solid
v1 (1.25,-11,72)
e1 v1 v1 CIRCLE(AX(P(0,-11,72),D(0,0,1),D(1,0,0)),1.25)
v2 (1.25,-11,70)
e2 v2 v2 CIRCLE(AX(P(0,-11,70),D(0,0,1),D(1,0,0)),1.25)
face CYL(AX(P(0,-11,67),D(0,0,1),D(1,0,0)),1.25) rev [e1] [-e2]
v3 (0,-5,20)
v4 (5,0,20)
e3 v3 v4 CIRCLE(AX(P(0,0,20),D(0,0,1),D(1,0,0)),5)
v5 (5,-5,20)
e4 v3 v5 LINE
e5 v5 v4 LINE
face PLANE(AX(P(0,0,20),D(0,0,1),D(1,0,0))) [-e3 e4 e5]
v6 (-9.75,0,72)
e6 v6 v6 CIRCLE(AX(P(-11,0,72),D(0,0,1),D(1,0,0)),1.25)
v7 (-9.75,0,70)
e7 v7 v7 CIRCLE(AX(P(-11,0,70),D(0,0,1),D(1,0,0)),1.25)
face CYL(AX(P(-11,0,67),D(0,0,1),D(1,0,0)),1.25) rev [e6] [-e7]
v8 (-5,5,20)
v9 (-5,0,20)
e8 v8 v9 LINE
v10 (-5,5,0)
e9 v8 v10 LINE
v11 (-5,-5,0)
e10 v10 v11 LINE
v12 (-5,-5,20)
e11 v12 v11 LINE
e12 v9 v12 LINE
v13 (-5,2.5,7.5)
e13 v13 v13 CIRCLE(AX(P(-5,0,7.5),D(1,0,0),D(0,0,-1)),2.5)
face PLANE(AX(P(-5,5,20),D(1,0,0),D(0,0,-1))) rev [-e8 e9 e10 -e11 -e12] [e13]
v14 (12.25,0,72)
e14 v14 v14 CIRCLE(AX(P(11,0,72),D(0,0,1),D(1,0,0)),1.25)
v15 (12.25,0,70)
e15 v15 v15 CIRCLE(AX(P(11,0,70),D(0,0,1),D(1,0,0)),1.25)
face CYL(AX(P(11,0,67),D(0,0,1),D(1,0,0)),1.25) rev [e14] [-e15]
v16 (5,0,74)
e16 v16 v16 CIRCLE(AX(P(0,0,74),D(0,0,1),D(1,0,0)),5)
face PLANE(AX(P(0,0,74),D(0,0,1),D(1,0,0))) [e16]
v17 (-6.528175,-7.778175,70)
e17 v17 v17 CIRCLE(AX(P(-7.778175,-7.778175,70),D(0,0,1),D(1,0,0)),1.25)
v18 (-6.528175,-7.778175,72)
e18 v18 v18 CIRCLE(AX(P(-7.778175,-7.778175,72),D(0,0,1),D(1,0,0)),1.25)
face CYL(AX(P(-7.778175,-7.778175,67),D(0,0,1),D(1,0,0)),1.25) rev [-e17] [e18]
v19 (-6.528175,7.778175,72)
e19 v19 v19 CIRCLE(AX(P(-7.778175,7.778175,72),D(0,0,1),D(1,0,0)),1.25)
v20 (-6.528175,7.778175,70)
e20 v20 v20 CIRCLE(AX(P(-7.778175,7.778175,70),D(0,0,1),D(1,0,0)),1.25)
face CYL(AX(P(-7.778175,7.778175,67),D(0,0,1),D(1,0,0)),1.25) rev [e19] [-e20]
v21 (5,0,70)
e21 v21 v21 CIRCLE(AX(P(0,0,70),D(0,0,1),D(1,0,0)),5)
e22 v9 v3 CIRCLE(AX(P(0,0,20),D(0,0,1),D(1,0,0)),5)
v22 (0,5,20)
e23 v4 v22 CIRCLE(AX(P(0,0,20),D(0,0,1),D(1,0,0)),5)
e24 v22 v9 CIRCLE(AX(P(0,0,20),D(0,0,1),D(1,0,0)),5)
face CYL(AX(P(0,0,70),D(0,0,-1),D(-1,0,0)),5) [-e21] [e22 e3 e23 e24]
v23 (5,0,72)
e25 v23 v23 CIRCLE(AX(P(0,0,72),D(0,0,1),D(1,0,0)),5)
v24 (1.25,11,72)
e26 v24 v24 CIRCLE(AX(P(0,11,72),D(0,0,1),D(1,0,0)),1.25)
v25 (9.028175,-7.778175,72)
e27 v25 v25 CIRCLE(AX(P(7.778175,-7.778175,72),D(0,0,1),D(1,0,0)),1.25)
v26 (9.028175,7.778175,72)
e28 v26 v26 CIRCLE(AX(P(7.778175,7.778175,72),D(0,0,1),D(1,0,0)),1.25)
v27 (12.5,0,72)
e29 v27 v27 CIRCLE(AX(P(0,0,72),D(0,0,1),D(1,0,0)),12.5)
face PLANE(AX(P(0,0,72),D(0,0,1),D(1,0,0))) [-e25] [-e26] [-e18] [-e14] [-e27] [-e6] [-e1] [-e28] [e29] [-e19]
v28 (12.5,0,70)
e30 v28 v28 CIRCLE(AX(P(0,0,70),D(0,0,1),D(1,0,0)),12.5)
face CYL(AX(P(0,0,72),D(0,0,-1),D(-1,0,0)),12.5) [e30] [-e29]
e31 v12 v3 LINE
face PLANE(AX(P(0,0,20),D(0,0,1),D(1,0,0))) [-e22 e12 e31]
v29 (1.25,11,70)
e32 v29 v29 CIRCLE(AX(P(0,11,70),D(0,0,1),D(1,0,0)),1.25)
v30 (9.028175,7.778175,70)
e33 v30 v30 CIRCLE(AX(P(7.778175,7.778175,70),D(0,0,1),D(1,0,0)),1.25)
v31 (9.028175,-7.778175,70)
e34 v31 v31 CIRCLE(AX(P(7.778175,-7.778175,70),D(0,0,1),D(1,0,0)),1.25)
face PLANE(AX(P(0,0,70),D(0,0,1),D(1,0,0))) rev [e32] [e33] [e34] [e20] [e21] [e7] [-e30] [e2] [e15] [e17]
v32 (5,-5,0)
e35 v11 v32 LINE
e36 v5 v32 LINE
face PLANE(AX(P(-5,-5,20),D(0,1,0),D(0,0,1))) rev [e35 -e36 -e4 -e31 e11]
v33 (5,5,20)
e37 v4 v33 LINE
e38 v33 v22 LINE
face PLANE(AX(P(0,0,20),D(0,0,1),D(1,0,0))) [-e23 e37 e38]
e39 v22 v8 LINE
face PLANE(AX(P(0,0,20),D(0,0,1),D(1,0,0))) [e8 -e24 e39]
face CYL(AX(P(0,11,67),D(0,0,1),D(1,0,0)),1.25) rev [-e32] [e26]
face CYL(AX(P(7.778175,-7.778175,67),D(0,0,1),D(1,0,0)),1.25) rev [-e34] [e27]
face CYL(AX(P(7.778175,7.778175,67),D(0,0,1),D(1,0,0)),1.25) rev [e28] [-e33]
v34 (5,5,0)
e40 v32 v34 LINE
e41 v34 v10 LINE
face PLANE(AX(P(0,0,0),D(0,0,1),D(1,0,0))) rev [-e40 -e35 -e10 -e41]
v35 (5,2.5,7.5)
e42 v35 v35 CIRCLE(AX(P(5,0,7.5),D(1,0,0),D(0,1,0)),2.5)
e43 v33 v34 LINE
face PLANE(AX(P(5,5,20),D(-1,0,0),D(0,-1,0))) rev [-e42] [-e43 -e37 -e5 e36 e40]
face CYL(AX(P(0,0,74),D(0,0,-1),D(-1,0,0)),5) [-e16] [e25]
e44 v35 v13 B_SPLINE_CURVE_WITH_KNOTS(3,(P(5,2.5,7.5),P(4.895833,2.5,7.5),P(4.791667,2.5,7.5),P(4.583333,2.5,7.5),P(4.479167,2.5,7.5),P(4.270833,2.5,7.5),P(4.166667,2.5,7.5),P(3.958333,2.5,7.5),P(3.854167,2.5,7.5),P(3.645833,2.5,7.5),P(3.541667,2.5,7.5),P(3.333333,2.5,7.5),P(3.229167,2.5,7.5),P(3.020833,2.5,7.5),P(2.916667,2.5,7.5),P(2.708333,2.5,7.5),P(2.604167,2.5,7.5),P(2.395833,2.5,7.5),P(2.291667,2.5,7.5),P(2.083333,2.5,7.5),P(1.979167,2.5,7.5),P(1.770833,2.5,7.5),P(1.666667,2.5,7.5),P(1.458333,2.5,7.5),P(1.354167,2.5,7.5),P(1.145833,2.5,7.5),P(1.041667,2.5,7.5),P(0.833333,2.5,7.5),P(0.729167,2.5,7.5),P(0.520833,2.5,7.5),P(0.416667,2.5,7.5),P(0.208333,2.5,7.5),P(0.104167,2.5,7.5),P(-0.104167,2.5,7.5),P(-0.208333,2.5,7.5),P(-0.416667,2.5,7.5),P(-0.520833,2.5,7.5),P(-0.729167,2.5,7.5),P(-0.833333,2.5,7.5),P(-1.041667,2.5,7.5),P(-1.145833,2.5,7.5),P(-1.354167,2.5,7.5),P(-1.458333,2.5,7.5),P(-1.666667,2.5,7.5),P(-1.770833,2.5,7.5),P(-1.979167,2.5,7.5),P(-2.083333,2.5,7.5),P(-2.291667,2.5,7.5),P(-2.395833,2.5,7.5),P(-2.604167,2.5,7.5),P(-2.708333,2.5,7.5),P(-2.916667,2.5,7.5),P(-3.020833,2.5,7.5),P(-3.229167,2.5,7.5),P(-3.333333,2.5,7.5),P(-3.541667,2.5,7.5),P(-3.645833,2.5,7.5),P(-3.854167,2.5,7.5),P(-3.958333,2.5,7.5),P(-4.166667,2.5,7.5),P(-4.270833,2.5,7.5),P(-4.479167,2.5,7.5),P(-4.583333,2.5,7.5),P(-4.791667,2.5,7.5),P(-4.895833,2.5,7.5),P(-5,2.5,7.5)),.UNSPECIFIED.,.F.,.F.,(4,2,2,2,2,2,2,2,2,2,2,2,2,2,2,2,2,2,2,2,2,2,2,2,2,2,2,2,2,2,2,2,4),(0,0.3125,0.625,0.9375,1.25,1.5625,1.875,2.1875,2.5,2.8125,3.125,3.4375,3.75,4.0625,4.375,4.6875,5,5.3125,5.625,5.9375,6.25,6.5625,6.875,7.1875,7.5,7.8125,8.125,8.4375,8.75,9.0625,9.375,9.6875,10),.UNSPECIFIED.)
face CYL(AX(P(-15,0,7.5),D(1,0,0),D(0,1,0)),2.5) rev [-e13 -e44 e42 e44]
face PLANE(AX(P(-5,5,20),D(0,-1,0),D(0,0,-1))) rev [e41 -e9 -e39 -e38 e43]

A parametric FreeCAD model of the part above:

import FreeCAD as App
import Part
import Sketcher


def add_polygon(sketch, points):
    """Adds a closed chain of lines whose ends are joined by coincident constraints."""
    first, n = sketch.GeometryCount, len(points)
    for a, b in zip(points, points[1:] + points[:1]):
        sketch.addGeometry(Part.LineSegment(App.Vector(*a, 0), App.Vector(*b, 0)), False)
    for i in range(n):
        sketch.addConstraint(Sketcher.Constraint("Coincident", first + i, 2, first + (i + 1) % n, 1))

doc = App.newDocument("Part")
body = doc.addObject("PartDesign::Body", "Body")

sketch1 = body.newObject("Sketcher::SketchObject", "Sketch")
sketch1.AttachmentSupport = (doc.getObject("XY_Plane"), [""])
sketch1.MapMode = "FlatFace"
add_polygon(sketch1, [(-5, 5), (-5, -5), (5, -5), (5, 5)])
sketch1.addConstraint([
    Sketcher.Constraint("Vertical", 0),
    Sketcher.Constraint("Horizontal", 1),
    Sketcher.Constraint("Vertical", 2),
    Sketcher.Constraint("Horizontal", 3),
    Sketcher.Constraint("Symmetric", 0, 2, 2, 2, -1, 1),
    Sketcher.Constraint("Equal", 3, 0),
    Sketcher.Constraint("DistanceX", 1, 1, 1, 2, 10.0),
])
pad1 = body.newObject("PartDesign::Pad", "Pad")
pad1.Profile = sketch1
pad1.Length = 20

sketch2 = body.newObject("Sketcher::SketchObject", "Sketch001")
sketch2.AttachmentSupport = (doc.getObject("YZ_Plane"), [""])
sketch2.MapMode = "FlatFace"
sketch2.AttachmentOffset = App.Placement(App.Vector(0, 0, 5), App.Rotation())
sketch2.addGeometry(Part.Circle(App.Vector(0, 7.5, 0), App.Vector(0, 0, 1), 2.5), False)
sketch2.addConstraint([
    Sketcher.Constraint("PointOnObject", 0, 3, -2),
    Sketcher.Constraint("Diameter", 0, 5.0),
    Sketcher.Constraint("DistanceY", -1, 1, 0, 3, 7.5),
])
pocket1 = body.newObject("PartDesign::Pocket", "Pocket")
pocket1.Profile = sketch2
pocket1.Length = 20

sketch3 = body.newObject("Sketcher::SketchObject", "Sketch002")
sketch3.AttachmentSupport = (doc.getObject("XY_Plane"), [""])
sketch3.MapMode = "FlatFace"
sketch3.AttachmentOffset = App.Placement(App.Vector(0, 0, 20), App.Rotation())
sketch3.addGeometry(Part.Circle(App.Vector(0, 0, 0), App.Vector(0, 0, 1), 5), False)
sketch3.addConstraint([
    Sketcher.Constraint("Coincident", 0, 3, -1, 1),
    Sketcher.Constraint("Diameter", 0, 10.0),
])
pad2 = body.newObject("PartDesign::Pad", "Pad001")
pad2.Profile = sketch3
pad2.Length = 50

sketch4 = body.newObject("Sketcher::SketchObject", "Sketch003")
sketch4.AttachmentSupport = (doc.getObject("XY_Plane"), [""])
sketch4.MapMode = "FlatFace"
sketch4.AttachmentOffset = App.Placement(App.Vector(0, 0, 70), App.Rotation())
sketch4.addGeometry(Part.Circle(App.Vector(0, 0, 0), App.Vector(0, 0, 1), 12), False)
sketch4.addConstraint([
    Sketcher.Constraint("Coincident", 0, 3, -1, 1),
    Sketcher.Constraint("Diameter", 0, 25.0),
])
pad3 = body.newObject("PartDesign::Pad", "Pad002")
pad3.Profile = sketch4
pad3.Length = 2

sketch5 = body.newObject("Sketcher::SketchObject", "Sketch004")
sketch5.AttachmentSupport = (doc.getObject("XY_Plane"), [""])
sketch5.MapMode = "FlatFace"
sketch5.AttachmentOffset = App.Placement(App.Vector(0, 0, 72), App.Rotation())
sketch5.addGeometry([
    Part.Circle(App.Vector(0, 11, 0), App.Vector(0, 0, 1), 1.2),
    Part.Circle(App.Vector(7.8, 7.8, 0), App.Vector(0, 0, 1), 1.2),
    Part.Circle(App.Vector(11, 0, 0), App.Vector(0, 0, 1), 1.2),
    Part.Circle(App.Vector(7.8, -7.8, 0), App.Vector(0, 0, 1), 1.2),
    Part.Circle(App.Vector(0, -11, 0), App.Vector(0, 0, 1), 1.2),
    Part.Circle(App.Vector(-7.8, -7.8, 0), App.Vector(0, 0, 1), 1.2),
    Part.Circle(App.Vector(-11, 0, 0), App.Vector(0, 0, 1), 1.2),
    Part.Circle(App.Vector(-7.8, 7.8, 0), App.Vector(0, 0, 1), 1.2),
], False)
sketch5.addConstraint([
    Sketcher.Constraint("Equal", 0, 1),
    Sketcher.Constraint("Equal", 1, 2),
    Sketcher.Constraint("Equal", 2, 3),
    Sketcher.Constraint("Equal", 3, 4),
    Sketcher.Constraint("Equal", 4, 5),
    Sketcher.Constraint("Equal", 5, 6),
    Sketcher.Constraint("Equal", 6, 7),
    Sketcher.Constraint("Symmetric", 0, 3, 4, 3, -1, 1),
    Sketcher.Constraint("Symmetric", 1, 3, 5, 3, -1, 1),
    Sketcher.Constraint("Symmetric", 2, 3, 6, 3, -1, 1),
    Sketcher.Constraint("Symmetric", 3, 3, 7, 3, -1, 1),
    Sketcher.Constraint("Symmetric", 3, 3, 5, 3, -2),
    Sketcher.Constraint("PointOnObject", 0, 3, -2),
    Sketcher.Constraint("PointOnObject", 2, 3, -1),
    Sketcher.Constraint("Diameter", 0, 2.5),
    Sketcher.Constraint("DistanceY", -1, 1, 0, 3, 11.0),
    Sketcher.Constraint("DistanceX", -1, 1, 2, 3, 11.0),
    Sketcher.Constraint("DistanceY", 3, 3, 1, 3, 15.556349),
    Sketcher.Constraint("DistanceX", 5, 3, 3, 3, 15.556349),
])
pocket2 = body.newObject("PartDesign::Pocket", "Pocket001")
pocket2.Profile = sketch5
pocket2.Length = 5

sketch6 = body.newObject("Sketcher::SketchObject", "Sketch005")
sketch6.AttachmentSupport = (doc.getObject("XY_Plane"), [""])
sketch6.MapMode = "FlatFace"
sketch6.AttachmentOffset = App.Placement(App.Vector(0, 0, 72), App.Rotation())
sketch6.addGeometry(Part.Circle(App.Vector(0, 0, 0), App.Vector(0, 0, 1), 5), False)
sketch6.addConstraint([
    Sketcher.Constraint("Coincident", 0, 3, -1, 1),
    Sketcher.Constraint("Diameter", 0, 10.0),
])
pad4 = body.newObject("PartDesign::Pad", "Pad003")
pad4.Profile = sketch6
pad4.Length = 2

doc.recompute()
